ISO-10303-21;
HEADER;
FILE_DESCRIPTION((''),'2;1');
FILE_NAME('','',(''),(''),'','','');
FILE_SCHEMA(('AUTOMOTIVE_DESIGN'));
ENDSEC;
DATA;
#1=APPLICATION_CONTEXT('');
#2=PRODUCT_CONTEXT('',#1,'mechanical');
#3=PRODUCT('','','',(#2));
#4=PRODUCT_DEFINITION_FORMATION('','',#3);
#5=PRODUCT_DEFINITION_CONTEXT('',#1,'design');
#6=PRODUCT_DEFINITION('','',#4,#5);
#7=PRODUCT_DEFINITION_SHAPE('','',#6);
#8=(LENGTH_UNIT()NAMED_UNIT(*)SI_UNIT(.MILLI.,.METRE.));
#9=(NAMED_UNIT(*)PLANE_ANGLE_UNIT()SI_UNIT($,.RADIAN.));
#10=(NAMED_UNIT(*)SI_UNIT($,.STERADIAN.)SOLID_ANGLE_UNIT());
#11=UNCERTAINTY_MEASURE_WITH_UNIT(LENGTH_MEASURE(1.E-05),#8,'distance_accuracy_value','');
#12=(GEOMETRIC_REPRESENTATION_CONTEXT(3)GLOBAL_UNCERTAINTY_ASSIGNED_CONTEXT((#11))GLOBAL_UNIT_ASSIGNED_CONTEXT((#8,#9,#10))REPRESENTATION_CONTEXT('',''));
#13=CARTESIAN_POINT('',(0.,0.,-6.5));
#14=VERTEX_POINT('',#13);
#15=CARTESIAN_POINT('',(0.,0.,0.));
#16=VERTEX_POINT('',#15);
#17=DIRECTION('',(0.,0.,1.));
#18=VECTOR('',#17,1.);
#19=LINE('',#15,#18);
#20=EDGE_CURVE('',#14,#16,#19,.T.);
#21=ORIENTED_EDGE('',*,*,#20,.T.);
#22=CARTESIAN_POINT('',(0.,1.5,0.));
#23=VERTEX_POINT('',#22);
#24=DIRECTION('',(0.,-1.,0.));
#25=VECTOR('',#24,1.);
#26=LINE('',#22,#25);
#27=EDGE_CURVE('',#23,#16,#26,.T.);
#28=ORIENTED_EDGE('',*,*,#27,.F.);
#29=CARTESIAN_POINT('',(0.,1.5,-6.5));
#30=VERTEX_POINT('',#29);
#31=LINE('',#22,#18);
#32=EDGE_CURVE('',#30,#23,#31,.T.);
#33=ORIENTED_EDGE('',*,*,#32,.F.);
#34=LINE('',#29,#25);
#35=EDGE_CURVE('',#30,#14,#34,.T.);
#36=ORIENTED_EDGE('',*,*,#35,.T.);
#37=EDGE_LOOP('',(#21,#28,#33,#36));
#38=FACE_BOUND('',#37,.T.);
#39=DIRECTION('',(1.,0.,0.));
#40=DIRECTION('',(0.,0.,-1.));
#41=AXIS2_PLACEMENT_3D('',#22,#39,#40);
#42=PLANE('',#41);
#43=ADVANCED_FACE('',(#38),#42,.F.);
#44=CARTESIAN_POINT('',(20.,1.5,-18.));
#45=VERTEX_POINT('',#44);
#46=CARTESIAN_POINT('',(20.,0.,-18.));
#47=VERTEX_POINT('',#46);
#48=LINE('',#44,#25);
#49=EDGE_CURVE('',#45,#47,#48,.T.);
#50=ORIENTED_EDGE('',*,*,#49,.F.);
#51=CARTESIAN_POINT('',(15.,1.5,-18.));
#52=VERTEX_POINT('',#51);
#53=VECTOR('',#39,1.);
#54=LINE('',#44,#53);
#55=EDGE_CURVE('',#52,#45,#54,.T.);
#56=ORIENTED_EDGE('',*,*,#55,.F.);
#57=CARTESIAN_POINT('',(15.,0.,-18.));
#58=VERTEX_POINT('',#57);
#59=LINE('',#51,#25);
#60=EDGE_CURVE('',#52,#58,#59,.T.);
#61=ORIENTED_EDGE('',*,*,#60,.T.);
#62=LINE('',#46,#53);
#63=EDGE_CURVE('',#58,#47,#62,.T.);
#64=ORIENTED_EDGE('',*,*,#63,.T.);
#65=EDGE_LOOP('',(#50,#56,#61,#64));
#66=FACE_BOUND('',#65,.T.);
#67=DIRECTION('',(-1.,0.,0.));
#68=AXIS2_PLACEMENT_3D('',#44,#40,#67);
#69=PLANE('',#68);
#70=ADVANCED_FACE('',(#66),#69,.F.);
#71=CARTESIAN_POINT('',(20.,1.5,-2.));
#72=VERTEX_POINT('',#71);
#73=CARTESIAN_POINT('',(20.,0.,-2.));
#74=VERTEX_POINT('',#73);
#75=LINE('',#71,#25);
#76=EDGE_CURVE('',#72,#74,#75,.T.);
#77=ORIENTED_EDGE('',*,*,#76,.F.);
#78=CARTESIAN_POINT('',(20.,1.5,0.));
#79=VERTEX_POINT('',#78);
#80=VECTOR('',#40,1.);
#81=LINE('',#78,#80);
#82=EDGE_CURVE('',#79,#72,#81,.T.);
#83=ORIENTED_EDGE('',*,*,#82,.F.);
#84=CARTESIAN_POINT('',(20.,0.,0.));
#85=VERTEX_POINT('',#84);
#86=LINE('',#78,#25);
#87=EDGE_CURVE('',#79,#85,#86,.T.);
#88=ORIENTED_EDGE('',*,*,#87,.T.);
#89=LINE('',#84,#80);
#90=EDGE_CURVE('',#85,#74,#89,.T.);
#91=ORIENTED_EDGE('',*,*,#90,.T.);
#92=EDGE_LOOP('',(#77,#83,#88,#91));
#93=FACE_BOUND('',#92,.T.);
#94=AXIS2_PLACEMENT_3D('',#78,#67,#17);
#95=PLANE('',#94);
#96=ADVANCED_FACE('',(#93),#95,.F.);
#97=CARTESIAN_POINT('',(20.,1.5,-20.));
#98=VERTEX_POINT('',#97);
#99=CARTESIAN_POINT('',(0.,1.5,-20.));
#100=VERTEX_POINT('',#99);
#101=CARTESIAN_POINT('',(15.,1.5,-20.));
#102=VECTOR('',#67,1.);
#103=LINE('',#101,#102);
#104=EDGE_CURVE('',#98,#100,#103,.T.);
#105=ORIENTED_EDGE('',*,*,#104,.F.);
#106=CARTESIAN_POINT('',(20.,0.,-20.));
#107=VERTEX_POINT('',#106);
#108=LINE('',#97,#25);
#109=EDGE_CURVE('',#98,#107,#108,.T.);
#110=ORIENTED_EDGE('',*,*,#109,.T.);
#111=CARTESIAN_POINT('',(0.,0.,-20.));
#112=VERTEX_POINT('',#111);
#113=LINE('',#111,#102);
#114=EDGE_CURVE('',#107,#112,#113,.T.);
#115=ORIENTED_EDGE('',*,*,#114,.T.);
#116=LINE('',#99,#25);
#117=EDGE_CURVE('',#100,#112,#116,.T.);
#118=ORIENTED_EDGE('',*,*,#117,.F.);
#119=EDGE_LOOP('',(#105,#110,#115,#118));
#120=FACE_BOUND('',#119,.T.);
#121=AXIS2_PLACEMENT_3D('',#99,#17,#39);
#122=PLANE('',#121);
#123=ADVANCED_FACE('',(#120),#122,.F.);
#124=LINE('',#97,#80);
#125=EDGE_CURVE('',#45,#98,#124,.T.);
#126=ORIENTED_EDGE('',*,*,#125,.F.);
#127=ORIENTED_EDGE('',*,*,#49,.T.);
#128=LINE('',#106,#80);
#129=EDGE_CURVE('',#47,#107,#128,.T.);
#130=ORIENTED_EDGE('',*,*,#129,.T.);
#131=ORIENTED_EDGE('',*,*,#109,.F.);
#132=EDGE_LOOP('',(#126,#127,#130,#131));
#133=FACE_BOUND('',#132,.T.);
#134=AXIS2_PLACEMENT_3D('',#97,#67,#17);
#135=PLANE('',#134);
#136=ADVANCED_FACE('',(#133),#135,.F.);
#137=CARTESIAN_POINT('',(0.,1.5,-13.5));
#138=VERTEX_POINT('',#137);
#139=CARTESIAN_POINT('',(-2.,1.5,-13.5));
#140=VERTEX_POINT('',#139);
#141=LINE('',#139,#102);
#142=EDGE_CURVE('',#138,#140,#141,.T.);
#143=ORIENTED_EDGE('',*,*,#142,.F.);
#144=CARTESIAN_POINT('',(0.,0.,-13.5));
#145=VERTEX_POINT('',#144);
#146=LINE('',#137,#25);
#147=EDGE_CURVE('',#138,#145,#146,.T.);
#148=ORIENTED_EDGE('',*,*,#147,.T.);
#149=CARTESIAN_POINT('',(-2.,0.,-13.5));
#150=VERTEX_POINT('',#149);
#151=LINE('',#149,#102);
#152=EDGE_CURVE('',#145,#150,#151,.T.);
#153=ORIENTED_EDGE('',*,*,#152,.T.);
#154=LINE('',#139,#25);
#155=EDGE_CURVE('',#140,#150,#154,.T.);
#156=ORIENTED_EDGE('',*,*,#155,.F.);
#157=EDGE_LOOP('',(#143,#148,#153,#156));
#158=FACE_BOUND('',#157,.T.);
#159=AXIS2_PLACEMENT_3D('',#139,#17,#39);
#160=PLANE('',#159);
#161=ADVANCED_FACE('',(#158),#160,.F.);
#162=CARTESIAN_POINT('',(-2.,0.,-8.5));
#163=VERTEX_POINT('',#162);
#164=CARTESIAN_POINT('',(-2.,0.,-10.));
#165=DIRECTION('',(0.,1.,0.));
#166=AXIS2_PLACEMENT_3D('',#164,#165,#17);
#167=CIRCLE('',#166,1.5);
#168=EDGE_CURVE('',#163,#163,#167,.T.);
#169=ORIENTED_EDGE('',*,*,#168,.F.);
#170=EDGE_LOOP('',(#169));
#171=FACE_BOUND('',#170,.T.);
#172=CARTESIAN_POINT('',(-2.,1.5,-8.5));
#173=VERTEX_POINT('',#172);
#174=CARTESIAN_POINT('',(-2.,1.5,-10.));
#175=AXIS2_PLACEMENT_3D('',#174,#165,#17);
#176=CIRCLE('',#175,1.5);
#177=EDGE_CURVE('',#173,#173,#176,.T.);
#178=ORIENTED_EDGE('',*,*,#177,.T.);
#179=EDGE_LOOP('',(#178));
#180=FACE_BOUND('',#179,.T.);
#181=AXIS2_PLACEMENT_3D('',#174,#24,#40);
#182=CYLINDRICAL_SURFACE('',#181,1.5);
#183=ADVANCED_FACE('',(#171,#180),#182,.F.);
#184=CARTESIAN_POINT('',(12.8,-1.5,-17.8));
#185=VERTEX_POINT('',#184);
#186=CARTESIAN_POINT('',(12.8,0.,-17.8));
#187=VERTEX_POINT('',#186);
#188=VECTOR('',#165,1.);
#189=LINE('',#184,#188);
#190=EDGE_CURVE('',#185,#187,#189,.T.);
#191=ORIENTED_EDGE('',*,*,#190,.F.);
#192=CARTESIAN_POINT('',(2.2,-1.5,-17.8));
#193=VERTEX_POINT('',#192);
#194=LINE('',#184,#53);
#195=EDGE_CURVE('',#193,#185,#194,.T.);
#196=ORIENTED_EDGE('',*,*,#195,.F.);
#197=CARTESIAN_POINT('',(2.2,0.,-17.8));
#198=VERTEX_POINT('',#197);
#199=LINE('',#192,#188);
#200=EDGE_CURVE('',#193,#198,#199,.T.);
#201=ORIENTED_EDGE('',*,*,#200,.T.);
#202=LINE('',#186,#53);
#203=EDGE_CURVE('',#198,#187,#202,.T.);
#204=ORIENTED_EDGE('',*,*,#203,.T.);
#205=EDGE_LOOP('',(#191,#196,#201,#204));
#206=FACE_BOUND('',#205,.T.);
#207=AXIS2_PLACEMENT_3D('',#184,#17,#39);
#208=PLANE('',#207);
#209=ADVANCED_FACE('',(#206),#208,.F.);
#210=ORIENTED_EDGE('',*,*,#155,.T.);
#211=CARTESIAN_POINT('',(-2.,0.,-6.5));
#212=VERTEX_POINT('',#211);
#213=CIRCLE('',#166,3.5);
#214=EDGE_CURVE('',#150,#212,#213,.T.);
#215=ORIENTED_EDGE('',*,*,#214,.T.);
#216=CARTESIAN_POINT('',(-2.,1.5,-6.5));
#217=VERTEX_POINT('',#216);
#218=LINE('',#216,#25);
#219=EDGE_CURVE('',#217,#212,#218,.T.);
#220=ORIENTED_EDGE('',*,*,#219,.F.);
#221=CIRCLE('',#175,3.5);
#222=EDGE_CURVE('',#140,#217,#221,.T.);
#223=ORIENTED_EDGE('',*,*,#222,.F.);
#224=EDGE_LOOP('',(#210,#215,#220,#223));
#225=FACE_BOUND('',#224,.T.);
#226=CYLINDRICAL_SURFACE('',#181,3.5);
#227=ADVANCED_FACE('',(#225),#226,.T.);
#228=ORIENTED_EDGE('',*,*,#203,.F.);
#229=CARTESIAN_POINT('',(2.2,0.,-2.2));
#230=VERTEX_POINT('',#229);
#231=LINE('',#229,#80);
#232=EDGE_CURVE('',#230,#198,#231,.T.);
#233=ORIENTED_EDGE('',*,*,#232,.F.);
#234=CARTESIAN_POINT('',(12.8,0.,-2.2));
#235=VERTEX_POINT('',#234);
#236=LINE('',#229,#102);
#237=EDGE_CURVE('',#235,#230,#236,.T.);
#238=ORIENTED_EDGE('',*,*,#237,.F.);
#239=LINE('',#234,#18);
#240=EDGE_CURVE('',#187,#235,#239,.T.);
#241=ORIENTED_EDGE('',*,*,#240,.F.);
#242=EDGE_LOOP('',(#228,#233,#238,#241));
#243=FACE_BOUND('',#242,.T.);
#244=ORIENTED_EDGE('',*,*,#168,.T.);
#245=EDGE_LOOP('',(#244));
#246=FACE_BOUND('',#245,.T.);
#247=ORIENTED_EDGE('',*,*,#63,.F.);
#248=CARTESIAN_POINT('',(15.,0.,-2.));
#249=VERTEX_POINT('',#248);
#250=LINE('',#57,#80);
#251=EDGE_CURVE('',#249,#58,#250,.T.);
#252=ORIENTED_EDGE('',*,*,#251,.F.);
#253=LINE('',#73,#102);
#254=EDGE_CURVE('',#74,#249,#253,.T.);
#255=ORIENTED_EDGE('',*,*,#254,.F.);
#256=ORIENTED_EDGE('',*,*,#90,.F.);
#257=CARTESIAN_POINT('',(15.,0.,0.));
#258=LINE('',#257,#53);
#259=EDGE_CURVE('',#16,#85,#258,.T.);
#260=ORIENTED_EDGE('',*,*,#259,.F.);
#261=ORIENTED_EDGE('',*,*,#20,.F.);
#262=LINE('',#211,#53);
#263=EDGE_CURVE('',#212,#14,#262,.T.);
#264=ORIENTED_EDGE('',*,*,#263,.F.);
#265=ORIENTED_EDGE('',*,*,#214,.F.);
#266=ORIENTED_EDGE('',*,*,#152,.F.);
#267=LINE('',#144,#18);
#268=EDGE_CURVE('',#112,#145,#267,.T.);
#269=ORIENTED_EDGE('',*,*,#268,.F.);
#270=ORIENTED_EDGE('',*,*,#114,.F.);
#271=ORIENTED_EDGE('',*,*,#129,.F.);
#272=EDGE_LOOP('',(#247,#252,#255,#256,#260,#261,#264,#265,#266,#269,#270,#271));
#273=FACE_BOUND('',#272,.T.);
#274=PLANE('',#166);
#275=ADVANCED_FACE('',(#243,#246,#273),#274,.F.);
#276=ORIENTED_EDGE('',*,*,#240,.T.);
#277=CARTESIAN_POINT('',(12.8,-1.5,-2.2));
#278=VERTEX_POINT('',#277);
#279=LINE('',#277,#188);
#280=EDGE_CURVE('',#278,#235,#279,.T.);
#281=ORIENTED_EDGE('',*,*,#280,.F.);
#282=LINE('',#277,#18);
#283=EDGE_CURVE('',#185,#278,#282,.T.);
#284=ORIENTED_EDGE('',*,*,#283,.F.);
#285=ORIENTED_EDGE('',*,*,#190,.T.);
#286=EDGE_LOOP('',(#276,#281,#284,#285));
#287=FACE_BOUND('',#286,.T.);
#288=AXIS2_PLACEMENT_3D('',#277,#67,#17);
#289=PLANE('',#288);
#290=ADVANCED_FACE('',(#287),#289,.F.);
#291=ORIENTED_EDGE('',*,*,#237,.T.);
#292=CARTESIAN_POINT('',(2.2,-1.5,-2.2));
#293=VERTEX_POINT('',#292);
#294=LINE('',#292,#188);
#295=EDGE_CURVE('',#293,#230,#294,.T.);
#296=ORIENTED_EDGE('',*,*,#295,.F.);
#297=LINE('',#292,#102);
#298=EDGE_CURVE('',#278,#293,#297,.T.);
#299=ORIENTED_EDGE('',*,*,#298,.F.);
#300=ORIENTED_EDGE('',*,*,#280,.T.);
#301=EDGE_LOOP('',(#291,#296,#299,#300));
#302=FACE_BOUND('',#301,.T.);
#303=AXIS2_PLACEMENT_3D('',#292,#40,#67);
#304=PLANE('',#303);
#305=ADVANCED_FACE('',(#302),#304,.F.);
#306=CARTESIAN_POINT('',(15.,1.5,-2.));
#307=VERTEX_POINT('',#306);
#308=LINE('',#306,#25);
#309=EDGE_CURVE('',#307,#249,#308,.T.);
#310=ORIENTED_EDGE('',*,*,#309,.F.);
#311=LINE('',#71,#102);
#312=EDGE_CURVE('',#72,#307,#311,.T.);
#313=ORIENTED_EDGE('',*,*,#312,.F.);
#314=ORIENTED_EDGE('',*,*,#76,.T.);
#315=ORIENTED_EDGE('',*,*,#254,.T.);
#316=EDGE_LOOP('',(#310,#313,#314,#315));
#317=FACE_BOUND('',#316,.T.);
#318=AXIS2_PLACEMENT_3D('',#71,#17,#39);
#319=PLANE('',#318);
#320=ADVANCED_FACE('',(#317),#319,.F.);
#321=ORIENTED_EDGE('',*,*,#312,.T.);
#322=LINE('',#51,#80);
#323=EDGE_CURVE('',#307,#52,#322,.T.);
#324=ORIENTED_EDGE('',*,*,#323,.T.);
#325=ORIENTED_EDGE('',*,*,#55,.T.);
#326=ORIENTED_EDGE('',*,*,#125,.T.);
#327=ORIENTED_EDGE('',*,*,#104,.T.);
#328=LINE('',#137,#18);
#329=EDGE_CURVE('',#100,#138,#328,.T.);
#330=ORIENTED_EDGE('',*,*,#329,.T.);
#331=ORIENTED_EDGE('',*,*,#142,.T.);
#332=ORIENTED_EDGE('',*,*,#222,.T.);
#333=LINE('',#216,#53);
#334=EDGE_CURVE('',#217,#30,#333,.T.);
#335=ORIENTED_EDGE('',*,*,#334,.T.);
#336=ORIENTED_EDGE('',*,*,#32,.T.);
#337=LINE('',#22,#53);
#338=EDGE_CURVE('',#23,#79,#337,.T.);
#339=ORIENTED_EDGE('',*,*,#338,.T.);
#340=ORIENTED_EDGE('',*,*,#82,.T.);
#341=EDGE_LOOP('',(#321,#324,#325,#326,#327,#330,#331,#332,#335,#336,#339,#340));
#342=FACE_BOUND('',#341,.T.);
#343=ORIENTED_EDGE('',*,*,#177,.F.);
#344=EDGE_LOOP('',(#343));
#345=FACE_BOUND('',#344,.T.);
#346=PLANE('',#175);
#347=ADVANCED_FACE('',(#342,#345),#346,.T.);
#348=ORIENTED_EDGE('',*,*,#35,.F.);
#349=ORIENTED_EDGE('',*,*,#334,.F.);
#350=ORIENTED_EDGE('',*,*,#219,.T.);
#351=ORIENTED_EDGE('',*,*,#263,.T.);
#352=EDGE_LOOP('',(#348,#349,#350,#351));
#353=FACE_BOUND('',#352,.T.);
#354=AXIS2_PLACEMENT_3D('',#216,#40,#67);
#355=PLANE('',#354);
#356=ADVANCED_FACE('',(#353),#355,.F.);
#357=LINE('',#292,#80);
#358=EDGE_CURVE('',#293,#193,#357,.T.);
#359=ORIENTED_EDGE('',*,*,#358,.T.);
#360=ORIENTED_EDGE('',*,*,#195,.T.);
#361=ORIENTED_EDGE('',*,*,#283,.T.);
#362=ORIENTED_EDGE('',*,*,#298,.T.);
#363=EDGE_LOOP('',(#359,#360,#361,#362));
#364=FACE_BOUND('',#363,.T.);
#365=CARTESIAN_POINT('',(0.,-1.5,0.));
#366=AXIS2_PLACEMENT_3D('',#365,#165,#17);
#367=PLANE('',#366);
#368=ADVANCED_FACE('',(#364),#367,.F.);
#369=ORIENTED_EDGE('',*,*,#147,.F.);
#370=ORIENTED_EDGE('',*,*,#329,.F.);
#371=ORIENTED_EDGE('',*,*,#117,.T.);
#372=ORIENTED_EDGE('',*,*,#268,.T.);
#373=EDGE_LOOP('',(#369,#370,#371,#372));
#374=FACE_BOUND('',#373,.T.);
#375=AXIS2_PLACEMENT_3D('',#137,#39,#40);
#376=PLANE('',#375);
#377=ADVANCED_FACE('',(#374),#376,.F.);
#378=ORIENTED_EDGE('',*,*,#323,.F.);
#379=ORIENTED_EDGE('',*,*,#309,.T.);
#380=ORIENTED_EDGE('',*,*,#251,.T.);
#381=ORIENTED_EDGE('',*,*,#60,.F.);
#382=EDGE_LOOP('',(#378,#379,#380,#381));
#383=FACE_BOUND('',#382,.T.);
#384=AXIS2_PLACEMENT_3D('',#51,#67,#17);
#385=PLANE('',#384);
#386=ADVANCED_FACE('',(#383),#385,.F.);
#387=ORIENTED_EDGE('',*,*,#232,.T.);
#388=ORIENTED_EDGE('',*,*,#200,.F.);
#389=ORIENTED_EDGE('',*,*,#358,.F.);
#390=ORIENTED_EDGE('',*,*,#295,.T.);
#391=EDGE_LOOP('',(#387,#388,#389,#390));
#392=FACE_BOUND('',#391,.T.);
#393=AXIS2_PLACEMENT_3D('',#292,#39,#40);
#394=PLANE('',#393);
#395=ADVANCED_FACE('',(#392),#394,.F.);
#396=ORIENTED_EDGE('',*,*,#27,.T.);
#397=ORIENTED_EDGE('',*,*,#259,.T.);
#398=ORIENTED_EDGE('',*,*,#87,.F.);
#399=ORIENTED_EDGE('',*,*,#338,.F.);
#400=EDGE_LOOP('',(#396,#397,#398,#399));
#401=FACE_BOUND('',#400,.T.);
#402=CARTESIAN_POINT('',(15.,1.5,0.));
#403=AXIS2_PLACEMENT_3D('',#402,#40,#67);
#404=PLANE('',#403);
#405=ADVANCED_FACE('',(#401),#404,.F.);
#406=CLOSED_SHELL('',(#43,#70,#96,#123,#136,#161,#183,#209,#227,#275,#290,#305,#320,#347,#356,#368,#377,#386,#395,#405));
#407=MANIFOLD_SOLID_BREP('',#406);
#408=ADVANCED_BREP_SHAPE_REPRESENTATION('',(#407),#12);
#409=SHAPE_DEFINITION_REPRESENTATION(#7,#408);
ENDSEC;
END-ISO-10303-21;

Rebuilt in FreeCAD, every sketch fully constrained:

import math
import FreeCAD as App
import Part
import Sketcher
Q = App.Units.Quantity

doc = App.newDocument("Part")
body = doc.addObject("PartDesign::Body", "Body")

sketch1 = body.newObject("Sketcher::SketchObject", "Sketch")
sketch1.AttachmentSupport = (doc.getObject("XZ_Plane"), [""])
sketch1.MapMode = "FlatFace"
sketch1.addGeometry([
    Part.LineSegment(App.Vector(15, -2, 0), App.Vector(15, -18, 0)),
    Part.LineSegment(App.Vector(15, -18, 0), App.Vector(20, -18, 0)),
    Part.LineSegment(App.Vector(20, -18, 0), App.Vector(20, -20, 0)),
    Part.LineSegment(App.Vector(20, -20, 0), App.Vector(0, -20, 0)),
    Part.LineSegment(App.Vector(0, -20, 0), App.Vector(0, -13.5, 0)),
    Part.LineSegment(App.Vector(0, -13.5, 0), App.Vector(-2, -13.5, 0)),
    Part.ArcOfCircle(Part.Circle(App.Vector(-2, -10, 0), App.Vector(0, 0, 1), 3.5), math.radians(90), math.radians(270)),
    Part.LineSegment(App.Vector(-2, -6.5, 0), App.Vector(0, -6.5, 0)),
    Part.LineSegment(App.Vector(0, -6.5, 0), App.Vector(0, 0, 0)),
    Part.LineSegment(App.Vector(0, 0, 0), App.Vector(20, 0, 0)),
    Part.LineSegment(App.Vector(20, 0, 0), App.Vector(20, -2, 0)),
    Part.LineSegment(App.Vector(20, -2, 0), App.Vector(15, -2, 0)),
    Part.Circle(App.Vector(-2, -10, 0), App.Vector(0, 0, 1), 1.5),
], False)
sketch1.addConstraint([
    Sketcher.Constraint("Coincident", 0, 2, 1, 1),
    Sketcher.Constraint("Coincident", 1, 2, 2, 1),
    Sketcher.Constraint("Coincident", 2, 2, 3, 1),
    Sketcher.Constraint("Coincident", 3, 2, 4, 1),
    Sketcher.Constraint("Coincident", 4, 2, 5, 1),
    Sketcher.Constraint("Tangent", 5, 2, 6, 2),
    Sketcher.Constraint("Tangent", 6, 1, 7, 1),
    Sketcher.Constraint("Coincident", 7, 2, 8, 1),
    Sketcher.Constraint("Coincident", 8, 2, 9, 1),
    Sketcher.Constraint("Coincident", 9, 2, 10, 1),
    Sketcher.Constraint("Coincident", 10, 2, 11, 1),
    Sketcher.Constraint("Coincident", 11, 2, 0, 1),
    Sketcher.Constraint("Vertical", 0),
    Sketcher.Constraint("Horizontal", 1),
    Sketcher.Constraint("Vertical", 2),
    Sketcher.Constraint("Horizontal", 3),
    Sketcher.Constraint("Vertical", 4),
    Sketcher.Constraint("Horizontal", 5),
    Sketcher.Constraint("Horizontal", 7),
    Sketcher.Constraint("Vertical", 8),
    Sketcher.Constraint("Horizontal", 9),
    Sketcher.Constraint("Vertical", 10),
    Sketcher.Constraint("Horizontal", 11),
    Sketcher.Constraint("Coincident", 8, 2, -1, 1),
    Sketcher.Constraint("Coincident", 12, 3, 6, 3),
    Sketcher.Constraint("PointOnObject", 3, 2, -2),
    Sketcher.Constraint("Vertical", 2, 2, 9, 2),
    Sketcher.Constraint("Equal", 7, 2),
    Sketcher.Constraint("Equal", 4, 8),
    Sketcher.Constraint("Equal", 2, 10),
    Sketcher.Constraint("Diameter", 12, Q("3 mm")),
    Sketcher.Constraint("Radius", 6, Q("3.5 mm")),
    Sketcher.Constraint("DistanceX", 1, 1, 1, 2, Q("5 mm")),
    Sketcher.Constraint("DistanceX", 3, 2, 3, 1, Q("20 mm")),
    Sketcher.Constraint("DistanceX", 5, 2, 5, 1, Q("2 mm")),
    Sketcher.Constraint("DistanceY", 0, 2, 0, 1, Q("16 mm")),
])
pad1 = body.newObject("PartDesign::Pad", "Pad")
pad1.Profile = sketch1
pad1.Length = 1.5
pad1.Reversed = True

sketch2 = body.newObject("Sketcher::SketchObject", "Sketch001")
sketch2.AttachmentSupport = (doc.getObject("XZ_Plane"), [""])
sketch2.MapMode = "FlatFace"
sketch2.addGeometry([
    Part.LineSegment(App.Vector(2, -2, 0), App.Vector(2, -18, 0)),
    Part.LineSegment(App.Vector(2, -18, 0), App.Vector(13, -18, 0)),
    Part.LineSegment(App.Vector(13, -18, 0), App.Vector(13, -2, 0)),
    Part.LineSegment(App.Vector(13, -2, 0), App.Vector(2, -2, 0)),
], False)
sketch2.addConstraint([
    Sketcher.Constraint("Coincident", 0, 2, 1, 1),
    Sketcher.Constraint("Coincident", 1, 2, 2, 1),
    Sketcher.Constraint("Coincident", 2, 2, 3, 1),
    Sketcher.Constraint("Coincident", 3, 2, 0, 1),
    Sketcher.Constraint("Vertical", 0),
    Sketcher.Constraint("Horizontal", 1),
    Sketcher.Constraint("Vertical", 2),
    Sketcher.Constraint("Horizontal", 3),
    Sketcher.Constraint("DistanceX", 1, 1, 1, 2, Q("10.6 mm")),
    Sketcher.Constraint("DistanceY", 0, 2, 0, 1, Q("15.6 mm")),
    Sketcher.Constraint("DistanceX", -1, 1, 0, 2, Q("2.2 mm")),
    Sketcher.Constraint("DistanceY", 0, 2, -1, 1, Q("17.8 mm")),
])
pad2 = body.newObject("PartDesign::Pad", "Pad001")
pad2.Profile = sketch2
pad2.Length = 1.5

doc.recompute()
